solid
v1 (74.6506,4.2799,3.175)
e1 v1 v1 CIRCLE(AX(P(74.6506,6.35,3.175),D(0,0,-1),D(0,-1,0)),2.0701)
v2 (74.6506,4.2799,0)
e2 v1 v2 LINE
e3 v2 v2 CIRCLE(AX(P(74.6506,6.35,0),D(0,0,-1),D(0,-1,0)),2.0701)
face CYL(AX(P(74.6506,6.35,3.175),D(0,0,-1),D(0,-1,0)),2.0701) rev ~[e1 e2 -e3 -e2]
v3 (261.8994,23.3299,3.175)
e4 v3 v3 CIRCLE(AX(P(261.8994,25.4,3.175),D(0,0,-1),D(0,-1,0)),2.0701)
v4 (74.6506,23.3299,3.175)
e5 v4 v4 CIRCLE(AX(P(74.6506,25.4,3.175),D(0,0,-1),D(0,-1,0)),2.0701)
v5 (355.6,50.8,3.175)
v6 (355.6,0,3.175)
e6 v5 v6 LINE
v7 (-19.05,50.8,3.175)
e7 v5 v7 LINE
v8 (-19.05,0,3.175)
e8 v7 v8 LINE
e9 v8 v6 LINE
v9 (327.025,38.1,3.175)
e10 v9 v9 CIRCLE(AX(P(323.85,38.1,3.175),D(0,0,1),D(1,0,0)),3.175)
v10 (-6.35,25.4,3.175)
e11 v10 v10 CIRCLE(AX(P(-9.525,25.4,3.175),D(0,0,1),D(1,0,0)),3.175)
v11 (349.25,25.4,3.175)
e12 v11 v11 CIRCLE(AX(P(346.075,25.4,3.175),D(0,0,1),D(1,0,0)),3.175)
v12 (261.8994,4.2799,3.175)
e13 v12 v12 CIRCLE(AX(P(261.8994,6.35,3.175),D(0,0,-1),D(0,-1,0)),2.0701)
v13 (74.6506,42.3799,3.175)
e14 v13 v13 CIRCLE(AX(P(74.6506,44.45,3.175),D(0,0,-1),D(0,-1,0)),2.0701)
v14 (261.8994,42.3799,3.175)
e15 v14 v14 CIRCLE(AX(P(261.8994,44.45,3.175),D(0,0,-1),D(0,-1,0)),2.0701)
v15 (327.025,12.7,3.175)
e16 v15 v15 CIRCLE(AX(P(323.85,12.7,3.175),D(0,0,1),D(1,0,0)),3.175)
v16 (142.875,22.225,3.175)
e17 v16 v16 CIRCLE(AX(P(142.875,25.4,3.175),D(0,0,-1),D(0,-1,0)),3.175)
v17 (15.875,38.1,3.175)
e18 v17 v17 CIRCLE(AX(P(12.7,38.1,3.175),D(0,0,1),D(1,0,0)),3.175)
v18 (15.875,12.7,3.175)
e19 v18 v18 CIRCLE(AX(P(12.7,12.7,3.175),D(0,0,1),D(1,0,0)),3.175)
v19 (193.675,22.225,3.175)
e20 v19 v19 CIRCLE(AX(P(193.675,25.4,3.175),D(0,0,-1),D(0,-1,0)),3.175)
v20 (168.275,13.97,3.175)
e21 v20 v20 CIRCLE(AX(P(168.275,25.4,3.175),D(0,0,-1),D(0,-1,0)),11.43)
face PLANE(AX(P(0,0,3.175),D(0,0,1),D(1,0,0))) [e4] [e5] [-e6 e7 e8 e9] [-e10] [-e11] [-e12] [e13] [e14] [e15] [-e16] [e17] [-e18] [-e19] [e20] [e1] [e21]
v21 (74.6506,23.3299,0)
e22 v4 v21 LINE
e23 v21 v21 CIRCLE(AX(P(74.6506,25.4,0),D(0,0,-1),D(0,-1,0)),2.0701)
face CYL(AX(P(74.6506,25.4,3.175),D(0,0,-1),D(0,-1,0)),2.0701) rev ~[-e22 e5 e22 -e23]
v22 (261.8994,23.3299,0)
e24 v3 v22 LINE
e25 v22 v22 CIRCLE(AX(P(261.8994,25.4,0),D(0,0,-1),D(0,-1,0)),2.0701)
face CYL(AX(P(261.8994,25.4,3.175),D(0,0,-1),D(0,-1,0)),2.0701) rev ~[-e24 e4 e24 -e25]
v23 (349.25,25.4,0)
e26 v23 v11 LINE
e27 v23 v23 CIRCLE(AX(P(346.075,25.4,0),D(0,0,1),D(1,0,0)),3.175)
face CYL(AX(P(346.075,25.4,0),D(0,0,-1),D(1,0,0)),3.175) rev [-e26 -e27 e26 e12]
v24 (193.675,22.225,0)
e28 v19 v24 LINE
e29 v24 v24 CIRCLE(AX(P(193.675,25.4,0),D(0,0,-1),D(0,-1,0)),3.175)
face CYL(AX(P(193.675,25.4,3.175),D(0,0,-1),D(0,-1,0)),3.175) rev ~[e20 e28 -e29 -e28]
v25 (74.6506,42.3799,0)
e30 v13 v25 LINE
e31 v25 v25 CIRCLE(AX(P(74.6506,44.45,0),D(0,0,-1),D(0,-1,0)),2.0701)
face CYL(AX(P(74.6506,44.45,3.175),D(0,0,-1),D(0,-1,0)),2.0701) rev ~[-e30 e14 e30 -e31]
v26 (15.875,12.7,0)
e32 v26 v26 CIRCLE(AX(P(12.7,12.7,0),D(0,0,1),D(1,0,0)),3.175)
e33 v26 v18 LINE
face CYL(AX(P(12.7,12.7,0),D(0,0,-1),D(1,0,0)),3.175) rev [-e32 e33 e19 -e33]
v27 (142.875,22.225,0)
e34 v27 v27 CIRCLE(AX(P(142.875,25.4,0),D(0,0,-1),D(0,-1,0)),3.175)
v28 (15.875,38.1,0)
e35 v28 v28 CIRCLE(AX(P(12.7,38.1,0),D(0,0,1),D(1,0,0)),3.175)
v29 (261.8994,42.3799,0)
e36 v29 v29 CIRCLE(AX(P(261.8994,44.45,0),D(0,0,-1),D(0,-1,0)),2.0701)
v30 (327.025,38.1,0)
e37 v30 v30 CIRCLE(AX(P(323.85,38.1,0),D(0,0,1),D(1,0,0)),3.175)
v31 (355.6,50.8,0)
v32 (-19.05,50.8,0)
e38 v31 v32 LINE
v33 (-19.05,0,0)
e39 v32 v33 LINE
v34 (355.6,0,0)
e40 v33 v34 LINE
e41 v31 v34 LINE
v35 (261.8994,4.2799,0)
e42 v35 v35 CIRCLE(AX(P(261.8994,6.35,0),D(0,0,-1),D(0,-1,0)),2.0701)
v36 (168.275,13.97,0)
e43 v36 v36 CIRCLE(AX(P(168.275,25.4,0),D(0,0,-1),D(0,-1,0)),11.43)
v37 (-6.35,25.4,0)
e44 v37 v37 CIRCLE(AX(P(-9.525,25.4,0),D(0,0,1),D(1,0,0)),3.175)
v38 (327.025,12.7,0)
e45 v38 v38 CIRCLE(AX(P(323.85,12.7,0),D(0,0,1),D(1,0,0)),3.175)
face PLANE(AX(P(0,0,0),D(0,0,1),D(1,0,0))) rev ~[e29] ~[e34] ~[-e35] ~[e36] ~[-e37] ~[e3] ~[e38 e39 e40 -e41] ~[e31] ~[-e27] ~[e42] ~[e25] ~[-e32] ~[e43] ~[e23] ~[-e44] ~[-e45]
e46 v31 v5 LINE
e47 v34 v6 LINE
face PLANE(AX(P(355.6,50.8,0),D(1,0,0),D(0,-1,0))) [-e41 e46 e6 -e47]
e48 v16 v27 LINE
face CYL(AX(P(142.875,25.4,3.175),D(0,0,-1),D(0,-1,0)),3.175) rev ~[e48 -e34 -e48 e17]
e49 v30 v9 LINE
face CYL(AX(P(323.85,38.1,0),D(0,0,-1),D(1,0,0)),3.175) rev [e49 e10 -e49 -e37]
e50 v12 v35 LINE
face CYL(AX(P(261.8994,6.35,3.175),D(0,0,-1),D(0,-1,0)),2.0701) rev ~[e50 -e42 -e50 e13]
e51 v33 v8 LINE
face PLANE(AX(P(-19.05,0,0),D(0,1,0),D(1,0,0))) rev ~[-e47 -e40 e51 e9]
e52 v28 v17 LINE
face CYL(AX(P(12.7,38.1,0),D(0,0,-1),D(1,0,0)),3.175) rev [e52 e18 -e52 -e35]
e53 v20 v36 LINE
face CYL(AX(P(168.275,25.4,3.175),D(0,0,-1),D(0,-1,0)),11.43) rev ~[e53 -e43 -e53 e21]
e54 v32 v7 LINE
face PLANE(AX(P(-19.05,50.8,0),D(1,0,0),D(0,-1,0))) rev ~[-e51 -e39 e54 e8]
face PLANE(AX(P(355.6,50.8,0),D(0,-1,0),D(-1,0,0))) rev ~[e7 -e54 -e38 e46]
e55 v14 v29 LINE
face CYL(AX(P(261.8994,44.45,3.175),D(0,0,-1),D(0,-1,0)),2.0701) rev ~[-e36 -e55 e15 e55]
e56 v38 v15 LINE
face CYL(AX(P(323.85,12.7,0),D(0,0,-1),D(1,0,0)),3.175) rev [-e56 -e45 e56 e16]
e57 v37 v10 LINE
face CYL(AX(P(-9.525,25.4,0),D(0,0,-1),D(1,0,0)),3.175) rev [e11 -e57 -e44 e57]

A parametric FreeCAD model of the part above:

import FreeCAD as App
import Part
import Sketcher
Q = App.Units.Quantity


def add_polygon(sketch, points):
    """Adds a closed chain of lines whose ends are joined by coincident constraints."""
    first, n = sketch.GeometryCount, len(points)
    for a, b in zip(points, points[1:] + points[:1]):
        sketch.addGeometry(Part.LineSegment(App.Vector(*a, 0), App.Vector(*b, 0)), False)
    for i in range(n):
        sketch.addConstraint(Sketcher.Constraint("Coincident", first + i, 2, first + (i + 1) % n, 1))

doc = App.newDocument("Part")
params = doc.addObject("Spreadsheet::Sheet", "Params")
for row, (alias, value) in enumerate([
    ("sketch1_diameter", "0.25 in"),
    ("sketch1_width", "14.75 in"),
    ("pad1_length", "0.125 in"),
    ("sketch2_diameter", "0.9 in"),
    ("hole_diameter", "0.9 in"),
    ("hole_depth", "1 in"),
    ("sketch3_diameter", "0.25 in"),
    ("hole2_diameter", "0.25 in"),
    ("hole2_depth", "1 in"),
    ("sketch4_diameter", "0.163 in"),
    ("hole3_diameter", "0.163 in"),
    ("hole3_depth", "1 in"),
], start=1):
    params.set(f"A{row}", alias)
    params.set(f"B{row}", "=" + value)
    params.setAlias(f"B{row}", alias)

body = doc.addObject("PartDesign::Body", "Body")

# Sketch on XY plane
sketch1 = body.newObject("Sketcher::SketchObject", "Sketch")
sketch1.AttachmentSupport = (doc.getObject("XY_Plane"), [""])
sketch1.MapMode = "FlatFace"
add_polygon(sketch1, [(355.6, 0), (355.6, 50.8), (-19.1, 50.8), (-19.1, 0)])  # lines 0-3
sketch1.addGeometry(Part.Circle(App.Vector(12.7, 12.7, 0), App.Vector(0, 0, 1), 3.2), False)  # 4
sketch1.addGeometry(Part.Circle(App.Vector(-9.5, 25.4, 0), App.Vector(0, 0, 1), 3.2), False)  # 5
sketch1.addGeometry(Part.Circle(App.Vector(323.9, 12.7, 0), App.Vector(0, 0, 1), 3.2), False)  # 6
sketch1.addGeometry(Part.Circle(App.Vector(346.1, 25.4, 0), App.Vector(0, 0, 1), 3.2), False)  # 7
sketch1.addGeometry(Part.Circle(App.Vector(12.7, 38.1, 0), App.Vector(0, 0, 1), 3.2), False)  # 8
sketch1.addGeometry(Part.Circle(App.Vector(323.9, 38.1, 0), App.Vector(0, 0, 1), 3.2), False)  # 9
sketch1.addConstraint(Sketcher.Constraint("Vertical", 0))
sketch1.addConstraint(Sketcher.Constraint("Horizontal", 1))
sketch1.addConstraint(Sketcher.Constraint("Vertical", 2))
sketch1.addConstraint(Sketcher.Constraint("Horizontal", 3))
sketch1.addConstraint(Sketcher.Constraint("Equal", 4, 5))
sketch1.addConstraint(Sketcher.Constraint("Equal", 5, 6))
sketch1.addConstraint(Sketcher.Constraint("Equal", 6, 7))
sketch1.addConstraint(Sketcher.Constraint("Equal", 7, 8))
sketch1.addConstraint(Sketcher.Constraint("Equal", 8, 9))
sketch1.addConstraint(Sketcher.Constraint("PointOnObject", 2, 2, -1))
sketch1.addConstraint(Sketcher.Constraint("Horizontal", 4, 3, 6, 3))
sketch1.addConstraint(Sketcher.Constraint("Horizontal", 5, 3, 7, 3))
sketch1.addConstraint(Sketcher.Constraint("Horizontal", 8, 3, 9, 3))
sketch1.addConstraint(Sketcher.Constraint("Vertical", 4, 3, 8, 3))
sketch1.addConstraint(Sketcher.Constraint("Vertical", 6, 3, 9, 3))
sketch1.addConstraint(Sketcher.Constraint("Diameter", 4, Q("0.25 in")))
sketch1.addConstraint(Sketcher.Constraint("DistanceY", -1, 1, 5, 3, Q("1 in")))
sketch1.addConstraint(Sketcher.Constraint("DistanceY", 4, 3, 8, 3, Q("1 in")))
sketch1.addConstraint(Sketcher.Constraint("DistanceY", 7, 3, 0, 2, Q("1 in")))
sketch1.addConstraint(Sketcher.Constraint("DistanceX", 1, 2, 1, 1, Q("14.75 in")))
sketch1.addConstraint(Sketcher.Constraint("DistanceX", -1, 1, 4, 3, Q("0.5 in")))
sketch1.addConstraint(Sketcher.Constraint("DistanceY", -1, 1, 4, 3, Q("0.5 in")))
sketch1.addConstraint(Sketcher.Constraint("DistanceX", 9, 3, 0, 2, Q("1.25 in")))
sketch1.addConstraint(Sketcher.Constraint("DistanceX", 1, 2, 8, 3, Q("1.25 in")))
sketch1.addConstraint(Sketcher.Constraint("DistanceX", 5, 3, 7, 3, Q("14 in")))
sketch1.addConstraint(Sketcher.Constraint("DistanceX", 5, 3, -1, 1, Q("0.375 in")))
sketch1.setExpression("Constraints[19]", "Params.sketch1_diameter")
sketch1.setExpression("Constraints[23]", "Params.sketch1_width")
pad1 = body.newObject("PartDesign::Pad", "Pad")
pad1.Profile = sketch1
pad1.setExpression("Length", "Params.pad1_length")

# Sketch on XY plane
sketch2 = body.newObject("Sketcher::SketchObject", "Sketch001")
sketch2.AttachmentSupport = (doc.getObject("XY_Plane"), [""])
sketch2.MapMode = "FlatFace"
sketch2.AttachmentOffset = App.Placement(App.Vector(0, 0, 0.125 * 25.4), App.Rotation())
sketch2.addGeometry(Part.Circle(App.Vector(168, 25, 0), App.Vector(0, 0, 1), 11), False)
sketch2.addConstraint(Sketcher.Constraint("Diameter", 0, Q("0.9 in")))
sketch2.addConstraint(Sketcher.Constraint("DistanceY", -1, 1, 0, 3, Q("1 in")))
sketch2.addConstraint(Sketcher.Constraint("DistanceX", -1, 1, 0, 3, Q("6.625 in")))
sketch2.setExpression("Constraints[0]", "Params.sketch2_diameter")
doc.recompute()
hole = body.newObject("PartDesign::Hole", "Hole")
hole.Profile = sketch2
hole.ThreadType = "None"
hole.setExpression("Diameter", "Params.hole_diameter")
hole.DepthType = "Dimension"
hole.setExpression("Depth", "Params.hole_depth")
hole.DrillPoint = "Angled"
hole.DrillPointAngle = 118

# Sketch on XY plane
sketch3 = body.newObject("Sketcher::SketchObject", "Sketch002")
sketch3.AttachmentSupport = (doc.getObject("XY_Plane"), [""])
sketch3.MapMode = "FlatFace"
sketch3.AttachmentOffset = App.Placement(App.Vector(0, 0, 0.125 * 25.4), App.Rotation())
sketch3.addGeometry(Part.Circle(App.Vector(193.7, 25.4, 0), App.Vector(0, 0, 1), 3.2), False)
sketch3.addGeometry(Part.Circle(App.Vector(142.9, 25.4, 0), App.Vector(0, 0, 1), 3.2), False)
sketch3.addConstraint(Sketcher.Constraint("Equal", 0, 1))
sketch3.addConstraint(Sketcher.Constraint("Horizontal", 0, 3, 1, 3))
sketch3.addConstraint(Sketcher.Constraint("Diameter", 0, Q("0.25 in")))
sketch3.addConstraint(Sketcher.Constraint("DistanceY", -1, 1, 0, 3, Q("1 in")))
sketch3.addConstraint(Sketcher.Constraint("DistanceX", 1, 3, 0, 3, Q("2 in")))
sketch3.addConstraint(Sketcher.Constraint("DistanceX", -1, 1, 0, 3, Q("7.625 in")))
sketch3.setExpression("Constraints[2]", "Params.sketch3_diameter")
doc.recompute()
hole2 = body.newObject("PartDesign::Hole", "Hole001")
hole2.Profile = sketch3
hole2.ThreadType = "None"
hole2.setExpression("Diameter", "Params.hole2_diameter")
hole2.DepthType = "Dimension"
hole2.setExpression("Depth", "Params.hole2_depth")
hole2.DrillPoint = "Angled"
hole2.DrillPointAngle = 118

# Sketch on XY plane
sketch4 = body.newObject("Sketcher::SketchObject", "Sketch003")
sketch4.AttachmentSupport = (doc.getObject("XY_Plane"), [""])
sketch4.MapMode = "FlatFace"
sketch4.AttachmentOffset = App.Placement(App.Vector(0, 0, 0.125 * 25.4), App.Rotation())
sketch4.addGeometry(Part.Circle(App.Vector(74.7, 44.5, 0), App.Vector(0, 0, 1), 2.1), False)
sketch4.addGeometry(Part.Circle(App.Vector(74.7, 25.4, 0), App.Vector(0, 0, 1), 2.1), False)
sketch4.addGeometry(Part.Circle(App.Vector(74.7, 6.3, 0), App.Vector(0, 0, 1), 2.1), False)
sketch4.addGeometry(Part.Circle(App.Vector(261.9, 44.5, 0), App.Vector(0, 0, 1), 2.1), False)
sketch4.addGeometry(Part.Circle(App.Vector(261.9, 25.4, 0), App.Vector(0, 0, 1), 2.1), False)
sketch4.addGeometry(Part.Circle(App.Vector(261.9, 6.3, 0), App.Vector(0, 0, 1), 2.1), False)
sketch4.addConstraint(Sketcher.Constraint("Equal", 0, 1))
sketch4.addConstraint(Sketcher.Constraint("Equal", 1, 2))
sketch4.addConstraint(Sketcher.Constraint("Equal", 2, 3))
sketch4.addConstraint(Sketcher.Constraint("Equal", 3, 4))
sketch4.addConstraint(Sketcher.Constraint("Equal", 4, 5))
sketch4.addConstraint(Sketcher.Constraint("Horizontal", 0, 3, 3, 3))
sketch4.addConstraint(Sketcher.Constraint("Horizontal", 1, 3, 4, 3))
sketch4.addConstraint(Sketcher.Constraint("Horizontal", 2, 3, 5, 3))
sketch4.addConstraint(Sketcher.Constraint("Vertical", 0, 3, 1, 3))
sketch4.addConstraint(Sketcher.Constraint("Vertical", 1, 3, 2, 3))
sketch4.addConstraint(Sketcher.Constraint("Vertical", 3, 3, 4, 3))
sketch4.addConstraint(Sketcher.Constraint("Vertical", 4, 3, 5, 3))
sketch4.addConstraint(Sketcher.Constraint("Diameter", 0, Q("0.163 in")))
sketch4.addConstraint(Sketcher.Constraint("DistanceY", -1, 1, 1, 3, Q("1 in")))
sketch4.addConstraint(Sketcher.Constraint("DistanceY", 2, 3, 0, 3, Q("1.5 in")))
sketch4.addConstraint(Sketcher.Constraint("DistanceY", -1, 1, 0, 3, Q("1.75 in")))
sketch4.addConstraint(Sketcher.Constraint("DistanceX", -1, 1, 0, 3, Q("2.939 in")))
sketch4.addConstraint(Sketcher.Constraint("DistanceX", -1, 1, 3, 3, Q("10.311 in")))
sketch4.setExpression("Constraints[12]", "Params.sketch4_diameter")
doc.recompute()
hole3 = body.newObject("PartDesign::Hole", "Hole002")
hole3.Profile = sketch4
hole3.ThreadType = "None"
hole3.setExpression("Diameter", "Params.hole3_diameter")
hole3.DepthType = "Dimension"
hole3.setExpression("Depth", "Params.hole3_depth")
hole3.DrillPoint = "Angled"
hole3.DrillPointAngle = 118

doc.recompute()
